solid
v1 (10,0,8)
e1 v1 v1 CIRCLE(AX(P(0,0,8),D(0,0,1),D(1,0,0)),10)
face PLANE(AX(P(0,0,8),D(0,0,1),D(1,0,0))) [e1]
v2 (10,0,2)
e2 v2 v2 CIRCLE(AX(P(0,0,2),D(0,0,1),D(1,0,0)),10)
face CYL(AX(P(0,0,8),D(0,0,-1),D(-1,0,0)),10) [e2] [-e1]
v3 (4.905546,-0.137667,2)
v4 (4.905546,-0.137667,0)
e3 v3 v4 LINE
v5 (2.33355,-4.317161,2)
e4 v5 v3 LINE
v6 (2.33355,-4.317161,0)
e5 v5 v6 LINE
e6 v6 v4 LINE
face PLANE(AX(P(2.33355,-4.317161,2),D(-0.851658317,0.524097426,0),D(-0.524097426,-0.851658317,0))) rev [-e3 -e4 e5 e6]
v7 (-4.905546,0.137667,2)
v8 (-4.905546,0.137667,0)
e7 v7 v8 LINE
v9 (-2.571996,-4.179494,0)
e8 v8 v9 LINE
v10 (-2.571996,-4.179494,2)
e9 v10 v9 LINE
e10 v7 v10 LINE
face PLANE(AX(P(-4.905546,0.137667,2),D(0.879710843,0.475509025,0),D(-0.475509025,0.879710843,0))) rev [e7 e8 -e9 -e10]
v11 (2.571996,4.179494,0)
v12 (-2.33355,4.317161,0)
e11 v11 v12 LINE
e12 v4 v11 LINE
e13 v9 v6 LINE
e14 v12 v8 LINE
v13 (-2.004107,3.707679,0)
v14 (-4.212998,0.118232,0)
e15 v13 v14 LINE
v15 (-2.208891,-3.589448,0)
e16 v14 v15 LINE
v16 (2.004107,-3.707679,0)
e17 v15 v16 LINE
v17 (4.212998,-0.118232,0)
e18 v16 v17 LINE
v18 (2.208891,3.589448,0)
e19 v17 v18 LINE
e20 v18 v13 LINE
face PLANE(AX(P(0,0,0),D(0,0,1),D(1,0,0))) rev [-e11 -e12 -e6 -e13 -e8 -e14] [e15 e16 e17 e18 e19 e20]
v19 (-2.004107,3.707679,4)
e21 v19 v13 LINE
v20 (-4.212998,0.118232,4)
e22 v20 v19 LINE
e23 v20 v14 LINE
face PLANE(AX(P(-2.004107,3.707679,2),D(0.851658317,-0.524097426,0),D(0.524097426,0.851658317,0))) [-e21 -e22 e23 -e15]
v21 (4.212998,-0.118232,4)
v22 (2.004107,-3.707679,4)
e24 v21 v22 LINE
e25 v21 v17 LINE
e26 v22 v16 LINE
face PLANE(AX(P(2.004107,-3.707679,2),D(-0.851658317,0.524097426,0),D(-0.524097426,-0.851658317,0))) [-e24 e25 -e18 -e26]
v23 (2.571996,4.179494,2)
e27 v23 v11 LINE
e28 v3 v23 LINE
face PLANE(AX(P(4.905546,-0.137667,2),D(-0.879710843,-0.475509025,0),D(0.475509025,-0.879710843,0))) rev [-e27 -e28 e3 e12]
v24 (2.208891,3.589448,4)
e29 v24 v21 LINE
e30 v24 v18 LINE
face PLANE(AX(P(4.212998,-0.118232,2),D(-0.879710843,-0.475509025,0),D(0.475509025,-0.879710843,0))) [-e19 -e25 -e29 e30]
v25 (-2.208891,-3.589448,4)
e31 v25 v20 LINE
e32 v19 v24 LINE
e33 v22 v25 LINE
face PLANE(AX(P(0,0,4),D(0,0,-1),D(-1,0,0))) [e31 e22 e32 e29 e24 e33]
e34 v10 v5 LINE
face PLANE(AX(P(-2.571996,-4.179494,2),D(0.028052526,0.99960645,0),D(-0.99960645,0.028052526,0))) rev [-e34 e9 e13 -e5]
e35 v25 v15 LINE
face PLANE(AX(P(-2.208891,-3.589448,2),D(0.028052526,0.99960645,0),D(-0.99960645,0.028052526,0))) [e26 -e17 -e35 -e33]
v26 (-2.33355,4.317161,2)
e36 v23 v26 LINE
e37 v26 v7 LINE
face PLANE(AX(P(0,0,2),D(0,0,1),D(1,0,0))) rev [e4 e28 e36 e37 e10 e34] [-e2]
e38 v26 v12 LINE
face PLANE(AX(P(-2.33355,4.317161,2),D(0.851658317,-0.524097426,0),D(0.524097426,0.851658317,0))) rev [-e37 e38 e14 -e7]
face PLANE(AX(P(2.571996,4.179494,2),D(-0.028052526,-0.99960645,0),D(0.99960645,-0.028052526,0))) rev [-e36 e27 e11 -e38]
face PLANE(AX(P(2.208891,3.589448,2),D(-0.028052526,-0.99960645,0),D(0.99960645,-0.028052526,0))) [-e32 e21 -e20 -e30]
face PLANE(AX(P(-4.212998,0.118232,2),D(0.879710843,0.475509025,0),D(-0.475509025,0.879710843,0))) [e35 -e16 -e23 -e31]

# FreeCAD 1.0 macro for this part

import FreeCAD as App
import Part
import Sketcher

V = App.Vector


def add_polygon(sketch, points):
    """Adds a closed chain of lines whose ends are joined by coincident constraints."""
    first, n = sketch.GeometryCount, len(points)
    for a, b in zip(points, points[1:] + points[:1]):
        sketch.addGeometry(Part.LineSegment(App.Vector(*a, 0), App.Vector(*b, 0)), False)
    for i in range(n):
        sketch.addConstraint(Sketcher.Constraint("Coincident", first + i, 2, first + (i + 1) % n, 1))

doc = App.newDocument("Part")
body = doc.addObject("PartDesign::Body", "Body")

# Sketch on XY plane
sketch1 = body.newObject("Sketcher::SketchObject", "Sketch")
sketch1.AttachmentSupport = (doc.getObject("XY_Plane"), [""])
sketch1.MapMode = "FlatFace"
add_polygon(sketch1, [(-2.6, -4.2), (2.3, -4.3), (4.9, -0.1), (2.6, 4.2), (-2.3, 4.3), (-4.9, 0.1)])  # lines 0-5
add_polygon(sketch1, [(-2, 3.7), (2.2, 3.6), (4.2, -0.1), (2, -3.7), (-2.2, -3.6), (-4.2, 0.1)])  # lines 6-11
sketch1.addConstraint(Sketcher.Constraint("Symmetric", 0, 2, 3, 2, -1, 1))
sketch1.addConstraint(Sketcher.Constraint("Symmetric", 1, 2, 4, 2, -1, 1))
sketch1.addConstraint(Sketcher.Constraint("Symmetric", 2, 2, 5, 2, -1, 1))
sketch1.addConstraint(Sketcher.Constraint("Symmetric", 6, 2, 9, 2, -1, 1))
sketch1.addConstraint(Sketcher.Constraint("Symmetric", 7, 2, 10, 2, -1, 1))
sketch1.addConstraint(Sketcher.Constraint("Symmetric", 8, 2, 11, 2, -1, 1))
sketch1.addConstraint(Sketcher.Constraint("Parallel", 3, 6))
sketch1.addConstraint(Sketcher.Constraint("Parallel", 5, 7))
sketch1.addConstraint(Sketcher.Constraint("Parallel", 4, 8))
sketch1.addConstraint(Sketcher.Constraint("Equal", 0, 1))
sketch1.addConstraint(Sketcher.Constraint("Equal", 1, 2))
sketch1.addConstraint(Sketcher.Constraint("Equal", 6, 7))
sketch1.addConstraint(Sketcher.Constraint("Equal", 7, 8))
sketch1.addConstraint(Sketcher.Constraint("DistanceX", -1, 1, 7, 2, 4.212998))
sketch1.addConstraint(Sketcher.Constraint("DistanceX", 9, 2, 8, 2, 4.212998))
sketch1.addConstraint(Sketcher.Constraint("DistanceX", 3, 2, 0, 2, 4.667099))
sketch1.addConstraint(Sketcher.Constraint("DistanceY", 0, 2, -1, 1, 4.317161))
sketch1.addConstraint(Sketcher.Constraint("DistanceX", -1, 1, 6, 2, 2.208891))
pad1 = body.newObject("PartDesign::Pad", "Pad")
pad1.Profile = sketch1
pad1.Length = 2

# Sketch on XY plane
sketch2 = body.newObject("Sketcher::SketchObject", "Sketch001")
sketch2.AttachmentSupport = (doc.getObject("XY_Plane"), [""])
sketch2.MapMode = "FlatFace"
sketch2.AttachmentOffset = App.Placement(V(0, 0, 2), App.Rotation())
sketch2.addGeometry(Part.Circle(V(0, 0, 0), V(0, 0, 1), 10), False)
sketch2.addConstraint(Sketcher.Constraint("Coincident", 0, 3, -1, 1))
sketch2.addConstraint(Sketcher.Constraint("Diameter", 0, 20.0))
pad2 = body.newObject("PartDesign::Pad", "Pad001")
pad2.Profile = sketch2
pad2.Length = 6

# Sketch on XY plane
sketch3 = body.newObject("Sketcher::SketchObject", "Sketch002")
sketch3.AttachmentSupport = (doc.getObject("XY_Plane"), [""])
sketch3.MapMode = "FlatFace"
sketch3.AttachmentOffset = App.Placement(V(0, 0, 2), App.Rotation())
add_polygon(sketch3, [(2.2, 3.6), (4.2, -0.1), (2, -3.7), (-2.2, -3.6), (-4.2, 0.1), (-2, 3.7)])  # lines 0-5
sketch3.addConstraint(Sketcher.Constraint("Symmetric", 0, 2, 3, 2, -1, 1))
sketch3.addConstraint(Sketcher.Constraint("Symmetric", 1, 2, 4, 2, -1, 1))
sketch3.addConstraint(Sketcher.Constraint("Symmetric", 2, 2, 5, 2, -1, 1))
sketch3.addConstraint(Sketcher.Constraint("Equal", 0, 1))
sketch3.addConstraint(Sketcher.Constraint("Equal", 1, 2))
sketch3.addConstraint(Sketcher.Constraint("DistanceX", -1, 1, 0, 2, 4.212998))
sketch3.addConstraint(Sketcher.Constraint("DistanceX", 2, 2, 1, 2, 4.212998))
sketch3.addConstraint(Sketcher.Constraint("DistanceY", 0, 2, -1, 1, 0.118232))
sketch3.addConstraint(Sketcher.Constraint("DistanceY", 1, 2, -1, 1, 3.707679))
pocket1 = body.newObject("PartDesign::Pocket", "Pocket")
pocket1.Profile = sketch3
pocket1.Length = 2
pocket1.Reversed = True

doc.recompute()
